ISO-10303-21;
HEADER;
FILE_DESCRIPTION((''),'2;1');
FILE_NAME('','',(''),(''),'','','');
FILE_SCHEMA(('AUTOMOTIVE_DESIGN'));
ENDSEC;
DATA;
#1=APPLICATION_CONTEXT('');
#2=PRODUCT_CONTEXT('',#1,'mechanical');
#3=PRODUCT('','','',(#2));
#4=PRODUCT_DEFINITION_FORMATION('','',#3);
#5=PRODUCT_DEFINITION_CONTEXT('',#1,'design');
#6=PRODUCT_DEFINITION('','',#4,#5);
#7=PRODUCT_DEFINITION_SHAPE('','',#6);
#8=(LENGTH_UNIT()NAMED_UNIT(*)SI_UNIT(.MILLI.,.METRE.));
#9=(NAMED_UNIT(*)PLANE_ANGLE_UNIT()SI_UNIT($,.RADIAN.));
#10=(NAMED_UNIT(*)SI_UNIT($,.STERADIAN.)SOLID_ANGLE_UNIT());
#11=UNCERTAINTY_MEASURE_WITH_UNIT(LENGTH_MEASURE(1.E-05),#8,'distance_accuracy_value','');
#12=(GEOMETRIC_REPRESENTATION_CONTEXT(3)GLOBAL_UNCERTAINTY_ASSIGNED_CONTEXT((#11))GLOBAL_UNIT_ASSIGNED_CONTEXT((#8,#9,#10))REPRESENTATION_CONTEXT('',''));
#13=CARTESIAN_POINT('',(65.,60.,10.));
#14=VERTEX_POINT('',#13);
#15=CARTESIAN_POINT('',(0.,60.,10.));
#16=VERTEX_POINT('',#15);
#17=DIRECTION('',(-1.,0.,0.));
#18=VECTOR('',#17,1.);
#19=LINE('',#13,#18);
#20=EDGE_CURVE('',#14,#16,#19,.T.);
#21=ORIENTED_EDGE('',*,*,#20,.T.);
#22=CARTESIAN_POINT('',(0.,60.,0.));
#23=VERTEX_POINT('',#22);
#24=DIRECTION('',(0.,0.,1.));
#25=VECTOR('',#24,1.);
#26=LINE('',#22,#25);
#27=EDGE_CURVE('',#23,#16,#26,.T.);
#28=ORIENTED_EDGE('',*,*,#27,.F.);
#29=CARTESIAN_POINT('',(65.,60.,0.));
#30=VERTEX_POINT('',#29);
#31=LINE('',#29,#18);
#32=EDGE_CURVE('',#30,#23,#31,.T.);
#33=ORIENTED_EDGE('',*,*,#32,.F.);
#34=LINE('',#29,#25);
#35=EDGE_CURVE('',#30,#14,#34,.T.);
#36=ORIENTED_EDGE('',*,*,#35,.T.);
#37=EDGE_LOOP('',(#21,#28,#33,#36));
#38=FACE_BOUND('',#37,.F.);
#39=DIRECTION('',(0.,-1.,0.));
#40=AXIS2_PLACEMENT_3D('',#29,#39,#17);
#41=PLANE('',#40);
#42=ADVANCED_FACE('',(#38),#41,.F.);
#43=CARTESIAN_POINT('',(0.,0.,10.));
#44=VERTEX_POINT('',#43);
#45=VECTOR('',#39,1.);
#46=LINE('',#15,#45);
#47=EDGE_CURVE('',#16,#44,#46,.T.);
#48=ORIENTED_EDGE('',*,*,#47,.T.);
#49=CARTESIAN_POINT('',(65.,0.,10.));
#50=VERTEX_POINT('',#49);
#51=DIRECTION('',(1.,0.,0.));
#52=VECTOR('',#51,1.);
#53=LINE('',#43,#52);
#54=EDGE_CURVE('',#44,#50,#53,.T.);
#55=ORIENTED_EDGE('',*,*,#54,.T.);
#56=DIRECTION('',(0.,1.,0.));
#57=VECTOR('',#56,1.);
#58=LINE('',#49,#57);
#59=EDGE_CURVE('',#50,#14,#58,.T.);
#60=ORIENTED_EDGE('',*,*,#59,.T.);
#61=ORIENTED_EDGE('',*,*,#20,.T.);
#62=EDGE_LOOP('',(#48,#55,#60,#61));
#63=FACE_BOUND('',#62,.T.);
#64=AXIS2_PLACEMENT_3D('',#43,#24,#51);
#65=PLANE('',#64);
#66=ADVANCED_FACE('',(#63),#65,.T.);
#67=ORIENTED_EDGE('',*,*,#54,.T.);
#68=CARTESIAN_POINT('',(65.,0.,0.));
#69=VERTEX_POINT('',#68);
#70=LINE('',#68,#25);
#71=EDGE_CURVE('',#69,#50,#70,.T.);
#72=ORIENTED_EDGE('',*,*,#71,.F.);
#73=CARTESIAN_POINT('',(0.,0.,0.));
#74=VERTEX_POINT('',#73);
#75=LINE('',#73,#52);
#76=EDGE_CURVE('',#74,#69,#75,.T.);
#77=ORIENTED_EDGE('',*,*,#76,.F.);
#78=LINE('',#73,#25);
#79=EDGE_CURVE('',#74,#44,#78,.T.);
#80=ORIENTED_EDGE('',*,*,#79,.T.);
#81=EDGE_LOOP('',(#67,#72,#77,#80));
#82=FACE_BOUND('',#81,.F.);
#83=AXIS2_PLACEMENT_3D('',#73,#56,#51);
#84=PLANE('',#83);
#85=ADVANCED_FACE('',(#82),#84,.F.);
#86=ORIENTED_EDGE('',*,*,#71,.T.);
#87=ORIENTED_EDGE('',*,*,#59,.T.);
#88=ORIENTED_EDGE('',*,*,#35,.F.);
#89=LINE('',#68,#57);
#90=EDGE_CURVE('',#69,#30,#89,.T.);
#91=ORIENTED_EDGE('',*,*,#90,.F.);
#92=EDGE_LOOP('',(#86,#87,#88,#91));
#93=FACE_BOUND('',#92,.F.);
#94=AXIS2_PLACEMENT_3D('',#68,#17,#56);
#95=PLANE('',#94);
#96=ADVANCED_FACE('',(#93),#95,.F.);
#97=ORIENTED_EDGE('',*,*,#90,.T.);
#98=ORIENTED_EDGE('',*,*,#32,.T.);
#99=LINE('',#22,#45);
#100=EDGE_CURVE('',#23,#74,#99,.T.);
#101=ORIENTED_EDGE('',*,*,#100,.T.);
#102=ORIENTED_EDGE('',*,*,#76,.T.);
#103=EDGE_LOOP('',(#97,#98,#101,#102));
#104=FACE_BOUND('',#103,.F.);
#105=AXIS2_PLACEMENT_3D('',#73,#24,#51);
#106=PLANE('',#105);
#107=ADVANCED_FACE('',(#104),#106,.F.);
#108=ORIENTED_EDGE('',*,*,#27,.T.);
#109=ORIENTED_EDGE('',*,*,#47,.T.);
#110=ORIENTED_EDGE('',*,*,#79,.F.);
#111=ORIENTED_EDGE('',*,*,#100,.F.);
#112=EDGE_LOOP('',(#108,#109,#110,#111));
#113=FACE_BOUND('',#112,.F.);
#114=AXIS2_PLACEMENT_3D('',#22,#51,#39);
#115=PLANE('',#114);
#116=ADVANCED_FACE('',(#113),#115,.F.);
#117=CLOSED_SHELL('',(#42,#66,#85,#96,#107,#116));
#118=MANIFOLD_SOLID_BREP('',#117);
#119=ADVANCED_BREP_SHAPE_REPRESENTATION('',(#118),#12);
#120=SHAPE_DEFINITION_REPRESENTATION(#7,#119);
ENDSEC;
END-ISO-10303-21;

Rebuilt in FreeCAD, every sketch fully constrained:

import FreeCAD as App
import Part
import Sketcher


def add_polygon(sketch, points):
    """Adds a closed chain of lines whose ends are joined by coincident constraints."""
    first, n = sketch.GeometryCount, len(points)
    for a, b in zip(points, points[1:] + points[:1]):
        sketch.addGeometry(Part.LineSegment(App.Vector(*a, 0), App.Vector(*b, 0)), False)
    for i in range(n):
        sketch.addConstraint(Sketcher.Constraint("Coincident", first + i, 2, first + (i + 1) % n, 1))

doc = App.newDocument("Part")
body = doc.addObject("PartDesign::Body", "Body")

sketch1 = body.newObject("Sketcher::SketchObject", "Sketch")
sketch1.AttachmentSupport = (doc.getObject("XY_Plane"), [""])
sketch1.MapMode = "FlatFace"
add_polygon(sketch1, [(0, 60), (0, 0), (65, 0), (65, 60)])
sketch1.addConstraint([
    Sketcher.Constraint("Vertical", 0),
    Sketcher.Constraint("Horizontal", 1),
    Sketcher.Constraint("Vertical", 2),
    Sketcher.Constraint("Horizontal", 3),
    Sketcher.Constraint("Coincident", 0, 2, -1, 1),
    Sketcher.Constraint("DistanceX", 1, 1, 1, 2, 65.0),
    Sketcher.Constraint("DistanceY", 0, 2, 0, 1, 60.0),
])
pad1 = body.newObject("PartDesign::Pad", "Pad")
pad1.Profile = sketch1
pad1.Length = 10

doc.recompute()
